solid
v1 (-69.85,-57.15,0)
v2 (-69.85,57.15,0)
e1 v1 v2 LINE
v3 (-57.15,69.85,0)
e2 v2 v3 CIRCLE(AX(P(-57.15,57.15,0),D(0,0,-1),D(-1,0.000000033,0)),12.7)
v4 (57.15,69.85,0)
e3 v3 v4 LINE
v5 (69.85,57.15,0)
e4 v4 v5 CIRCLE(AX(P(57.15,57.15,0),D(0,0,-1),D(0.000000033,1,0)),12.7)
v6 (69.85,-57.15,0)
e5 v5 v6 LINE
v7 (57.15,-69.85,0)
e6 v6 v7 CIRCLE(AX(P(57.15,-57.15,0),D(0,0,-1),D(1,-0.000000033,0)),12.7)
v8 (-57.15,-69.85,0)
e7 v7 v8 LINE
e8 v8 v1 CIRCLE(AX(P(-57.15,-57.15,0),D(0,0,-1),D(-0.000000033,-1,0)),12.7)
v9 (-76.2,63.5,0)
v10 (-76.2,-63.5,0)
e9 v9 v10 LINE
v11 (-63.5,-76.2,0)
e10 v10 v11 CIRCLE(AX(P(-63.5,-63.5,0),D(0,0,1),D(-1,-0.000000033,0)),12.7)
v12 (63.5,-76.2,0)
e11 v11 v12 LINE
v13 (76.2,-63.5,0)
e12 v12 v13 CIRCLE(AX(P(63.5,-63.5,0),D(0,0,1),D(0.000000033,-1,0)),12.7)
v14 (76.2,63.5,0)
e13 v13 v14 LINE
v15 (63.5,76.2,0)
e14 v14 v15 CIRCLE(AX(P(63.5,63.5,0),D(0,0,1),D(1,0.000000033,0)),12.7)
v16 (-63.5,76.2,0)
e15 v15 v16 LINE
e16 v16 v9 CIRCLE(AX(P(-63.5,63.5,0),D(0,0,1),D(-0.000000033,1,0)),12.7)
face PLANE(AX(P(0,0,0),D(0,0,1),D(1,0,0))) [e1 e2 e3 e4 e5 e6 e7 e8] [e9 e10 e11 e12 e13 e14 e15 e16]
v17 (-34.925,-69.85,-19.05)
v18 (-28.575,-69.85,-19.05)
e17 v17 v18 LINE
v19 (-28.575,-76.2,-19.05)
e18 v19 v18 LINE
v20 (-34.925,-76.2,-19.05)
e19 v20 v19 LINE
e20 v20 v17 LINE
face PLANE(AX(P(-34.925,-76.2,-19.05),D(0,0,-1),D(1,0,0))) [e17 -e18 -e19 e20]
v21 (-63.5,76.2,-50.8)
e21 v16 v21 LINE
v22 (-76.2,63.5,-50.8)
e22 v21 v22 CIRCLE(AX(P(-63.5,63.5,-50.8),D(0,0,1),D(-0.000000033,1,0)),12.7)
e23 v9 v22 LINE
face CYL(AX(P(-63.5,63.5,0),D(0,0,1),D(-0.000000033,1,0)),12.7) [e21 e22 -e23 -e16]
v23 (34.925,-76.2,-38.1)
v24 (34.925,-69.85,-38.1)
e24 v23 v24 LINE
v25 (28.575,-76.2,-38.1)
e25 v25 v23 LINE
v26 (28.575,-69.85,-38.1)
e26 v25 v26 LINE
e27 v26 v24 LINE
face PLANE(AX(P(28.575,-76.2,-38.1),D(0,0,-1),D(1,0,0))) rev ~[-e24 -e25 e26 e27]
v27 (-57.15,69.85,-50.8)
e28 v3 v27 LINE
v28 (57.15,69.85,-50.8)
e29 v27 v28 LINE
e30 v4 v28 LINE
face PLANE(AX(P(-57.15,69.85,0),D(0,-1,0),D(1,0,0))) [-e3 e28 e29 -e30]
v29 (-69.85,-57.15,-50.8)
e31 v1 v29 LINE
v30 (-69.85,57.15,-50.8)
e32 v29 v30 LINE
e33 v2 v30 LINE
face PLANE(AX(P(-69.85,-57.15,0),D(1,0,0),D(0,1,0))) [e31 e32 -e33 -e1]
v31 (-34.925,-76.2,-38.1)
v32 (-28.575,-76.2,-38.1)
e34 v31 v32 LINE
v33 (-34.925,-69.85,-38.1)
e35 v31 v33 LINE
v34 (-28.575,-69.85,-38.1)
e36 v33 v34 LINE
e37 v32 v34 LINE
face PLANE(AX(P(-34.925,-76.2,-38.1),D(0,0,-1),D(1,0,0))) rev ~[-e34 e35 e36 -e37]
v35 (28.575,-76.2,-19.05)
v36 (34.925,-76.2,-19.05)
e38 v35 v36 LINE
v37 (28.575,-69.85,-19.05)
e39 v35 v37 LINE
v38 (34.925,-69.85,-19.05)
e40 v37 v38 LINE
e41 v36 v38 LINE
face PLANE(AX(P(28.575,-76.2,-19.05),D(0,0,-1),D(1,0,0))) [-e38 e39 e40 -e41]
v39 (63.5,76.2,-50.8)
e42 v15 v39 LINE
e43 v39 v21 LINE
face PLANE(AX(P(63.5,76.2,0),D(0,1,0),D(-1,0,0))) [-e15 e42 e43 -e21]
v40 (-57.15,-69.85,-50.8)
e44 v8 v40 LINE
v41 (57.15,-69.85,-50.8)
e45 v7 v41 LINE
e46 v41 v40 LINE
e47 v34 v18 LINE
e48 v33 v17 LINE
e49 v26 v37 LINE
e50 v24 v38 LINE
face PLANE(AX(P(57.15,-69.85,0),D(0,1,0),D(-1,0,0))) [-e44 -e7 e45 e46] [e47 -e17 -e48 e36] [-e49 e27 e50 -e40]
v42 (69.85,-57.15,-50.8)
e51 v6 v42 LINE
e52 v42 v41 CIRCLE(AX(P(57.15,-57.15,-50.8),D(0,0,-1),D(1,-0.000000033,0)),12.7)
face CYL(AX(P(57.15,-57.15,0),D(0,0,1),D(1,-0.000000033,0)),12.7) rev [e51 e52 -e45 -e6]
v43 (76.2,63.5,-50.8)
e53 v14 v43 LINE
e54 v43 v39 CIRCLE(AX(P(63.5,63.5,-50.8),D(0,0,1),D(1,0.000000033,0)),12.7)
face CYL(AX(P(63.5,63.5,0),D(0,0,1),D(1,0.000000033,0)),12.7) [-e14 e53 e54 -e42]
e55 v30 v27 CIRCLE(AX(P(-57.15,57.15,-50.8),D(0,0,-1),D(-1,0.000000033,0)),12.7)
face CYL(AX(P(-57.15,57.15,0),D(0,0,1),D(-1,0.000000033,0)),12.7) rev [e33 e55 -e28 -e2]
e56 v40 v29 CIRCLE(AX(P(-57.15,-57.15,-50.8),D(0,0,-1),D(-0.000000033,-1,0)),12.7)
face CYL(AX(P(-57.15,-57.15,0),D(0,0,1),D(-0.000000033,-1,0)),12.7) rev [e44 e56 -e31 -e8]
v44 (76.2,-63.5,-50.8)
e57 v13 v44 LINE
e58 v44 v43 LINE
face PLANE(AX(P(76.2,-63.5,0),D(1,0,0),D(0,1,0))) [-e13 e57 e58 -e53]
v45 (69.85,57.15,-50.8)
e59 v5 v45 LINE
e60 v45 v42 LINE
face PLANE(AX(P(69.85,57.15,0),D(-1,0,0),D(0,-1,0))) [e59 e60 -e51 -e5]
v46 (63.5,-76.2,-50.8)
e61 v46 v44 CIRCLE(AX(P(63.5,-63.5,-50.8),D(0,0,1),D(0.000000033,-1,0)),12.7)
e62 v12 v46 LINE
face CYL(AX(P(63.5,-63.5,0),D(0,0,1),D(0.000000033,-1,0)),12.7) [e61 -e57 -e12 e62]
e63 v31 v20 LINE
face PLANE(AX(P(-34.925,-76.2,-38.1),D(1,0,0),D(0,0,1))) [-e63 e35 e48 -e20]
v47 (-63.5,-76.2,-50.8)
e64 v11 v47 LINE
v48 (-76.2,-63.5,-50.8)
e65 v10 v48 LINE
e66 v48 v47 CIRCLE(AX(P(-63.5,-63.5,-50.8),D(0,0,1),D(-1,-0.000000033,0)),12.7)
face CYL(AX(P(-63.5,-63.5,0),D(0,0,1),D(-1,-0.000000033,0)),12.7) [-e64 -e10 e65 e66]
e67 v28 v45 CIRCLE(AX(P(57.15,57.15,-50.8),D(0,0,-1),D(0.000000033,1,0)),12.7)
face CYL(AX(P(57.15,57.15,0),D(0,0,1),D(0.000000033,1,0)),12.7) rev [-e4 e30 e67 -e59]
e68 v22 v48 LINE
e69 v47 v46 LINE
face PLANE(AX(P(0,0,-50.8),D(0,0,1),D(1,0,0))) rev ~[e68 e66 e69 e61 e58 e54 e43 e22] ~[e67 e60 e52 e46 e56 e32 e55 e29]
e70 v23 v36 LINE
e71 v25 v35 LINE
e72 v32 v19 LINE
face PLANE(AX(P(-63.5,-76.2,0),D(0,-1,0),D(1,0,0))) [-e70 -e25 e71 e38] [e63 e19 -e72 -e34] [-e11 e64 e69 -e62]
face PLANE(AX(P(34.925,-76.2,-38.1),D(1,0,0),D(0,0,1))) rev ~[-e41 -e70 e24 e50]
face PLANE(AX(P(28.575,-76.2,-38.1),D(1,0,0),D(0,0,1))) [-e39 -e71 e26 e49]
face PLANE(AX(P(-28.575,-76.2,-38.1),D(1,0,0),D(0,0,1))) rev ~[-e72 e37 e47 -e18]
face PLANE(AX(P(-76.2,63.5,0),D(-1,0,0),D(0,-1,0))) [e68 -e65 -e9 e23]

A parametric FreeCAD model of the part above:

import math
import FreeCAD as App
import Part
import Sketcher

V = App.Vector
Q = App.Units.Quantity


def add_polygon(sketch, points):
    """Adds a closed chain of lines whose ends are joined by coincident constraints."""
    first, n = sketch.GeometryCount, len(points)
    for a, b in zip(points, points[1:] + points[:1]):
        sketch.addGeometry(Part.LineSegment(App.Vector(*a, 0), App.Vector(*b, 0)), False)
    for i in range(n):
        sketch.addConstraint(Sketcher.Constraint("Coincident", first + i, 2, first + (i + 1) % n, 1))

doc = App.newDocument("Part")
body = doc.addObject("PartDesign::Body", "Body")

sketch1 = doc.addObject("Sketcher::SketchObject", "Sketch")
body.addObject(sketch1)
sketch1.AttachmentSupport = (doc.XY_Plane, [""])
sketch1.MapMode = "FlatFace"
sketch1.addGeometry(Part.LineSegment(V(64, 76, 0), V(-64, 76, 0)), False)
sketch1.addGeometry(Part.ArcOfCircle(Part.Circle(V(-63, 63, 0), V(0, 0, 1), 13), math.radians(90), math.radians(180)), False)
sketch1.addGeometry(Part.LineSegment(V(-76, 64, 0), V(-76, -64, 0)), False)
sketch1.addGeometry(Part.ArcOfCircle(Part.Circle(V(-63, -63, 0), V(0, 0, 1), 13), math.radians(-180), math.radians(-90)), False)
sketch1.addGeometry(Part.LineSegment(V(-64, -76, 0), V(64, -76, 0)), False)
sketch1.addGeometry(Part.ArcOfCircle(Part.Circle(V(63, -63, 0), V(0, 0, 1), 13), math.radians(-90), math.radians(0)), False)
sketch1.addGeometry(Part.LineSegment(V(76, -64, 0), V(76, 64, 0)), False)
sketch1.addGeometry(Part.ArcOfCircle(Part.Circle(V(63, 63, 0), V(0, 0, 1), 13), math.radians(0), math.radians(90)), False)
sketch1.addGeometry(Part.LineSegment(V(-70, -57, 0), V(-70, 57, 0)), False)
sketch1.addGeometry(Part.ArcOfCircle(Part.Circle(V(-57, 57, 0), V(0, 0, 1), 13), math.radians(90), math.radians(180)), False)
sketch1.addGeometry(Part.LineSegment(V(-57, 70, 0), V(57, 70, 0)), False)
sketch1.addGeometry(Part.ArcOfCircle(Part.Circle(V(57, 57, 0), V(0, 0, 1), 13), math.radians(0), math.radians(90)), False)
sketch1.addGeometry(Part.LineSegment(V(70, 57, 0), V(70, -57, 0)), False)
sketch1.addGeometry(Part.ArcOfCircle(Part.Circle(V(57, -57, 0), V(0, 0, 1), 13), math.radians(-90), math.radians(0)), False)
sketch1.addGeometry(Part.LineSegment(V(57, -70, 0), V(-57, -70, 0)), False)
sketch1.addGeometry(Part.ArcOfCircle(Part.Circle(V(-57, -57, 0), V(0, 0, 1), 13), math.radians(-180), math.radians(-90)), False)
sketch1.addConstraint(Sketcher.Constraint("Tangent", 0, 2, 1, 1))
sketch1.addConstraint(Sketcher.Constraint("Tangent", 1, 2, 2, 1))
sketch1.addConstraint(Sketcher.Constraint("Tangent", 2, 2, 3, 1))
sketch1.addConstraint(Sketcher.Constraint("Tangent", 3, 2, 4, 1))
sketch1.addConstraint(Sketcher.Constraint("Tangent", 4, 2, 5, 1))
sketch1.addConstraint(Sketcher.Constraint("Tangent", 5, 2, 6, 1))
sketch1.addConstraint(Sketcher.Constraint("Tangent", 6, 2, 7, 1))
sketch1.addConstraint(Sketcher.Constraint("Tangent", 7, 2, 0, 1))
sketch1.addConstraint(Sketcher.Constraint("Tangent", 8, 2, 9, 2))
sketch1.addConstraint(Sketcher.Constraint("Tangent", 9, 1, 10, 1))
sketch1.addConstraint(Sketcher.Constraint("Tangent", 10, 2, 11, 2))
sketch1.addConstraint(Sketcher.Constraint("Tangent", 11, 1, 12, 1))
sketch1.addConstraint(Sketcher.Constraint("Tangent", 12, 2, 13, 2))
sketch1.addConstraint(Sketcher.Constraint("Tangent", 13, 1, 14, 1))
sketch1.addConstraint(Sketcher.Constraint("Tangent", 14, 2, 15, 2))
sketch1.addConstraint(Sketcher.Constraint("Tangent", 15, 1, 8, 1))
sketch1.addConstraint(Sketcher.Constraint("Horizontal", 0))
sketch1.addConstraint(Sketcher.Constraint("Vertical", 2))
sketch1.addConstraint(Sketcher.Constraint("Horizontal", 4))
sketch1.addConstraint(Sketcher.Constraint("Vertical", 6))
sketch1.addConstraint(Sketcher.Constraint("Vertical", 8))
sketch1.addConstraint(Sketcher.Constraint("Horizontal", 10))
sketch1.addConstraint(Sketcher.Constraint("Vertical", 12))
sketch1.addConstraint(Sketcher.Constraint("Horizontal", 14))
sketch1.addConstraint(Sketcher.Constraint("Equal", 1, 3))
sketch1.addConstraint(Sketcher.Constraint("Equal", 3, 5))
sketch1.addConstraint(Sketcher.Constraint("Equal", 5, 7))
sketch1.addConstraint(Sketcher.Constraint("Equal", 7, 9))
sketch1.addConstraint(Sketcher.Constraint("Equal", 9, 11))
sketch1.addConstraint(Sketcher.Constraint("Equal", 11, 13))
sketch1.addConstraint(Sketcher.Constraint("Equal", 13, 15))
sketch1.addConstraint(Sketcher.Constraint("Symmetric", 1, 3, 5, 3, -1, 1))
sketch1.addConstraint(Sketcher.Constraint("Symmetric", 9, 3, 13, 3, -1, 1))
sketch1.addConstraint(Sketcher.Constraint("Equal", 4, 2))
sketch1.addConstraint(Sketcher.Constraint("Equal", 14, 8))
sketch1.addConstraint(Sketcher.Constraint("Radius", 1, Q("0.5 in")))
sketch1.addConstraint(Sketcher.Constraint("DistanceX", 0, 2, 0, 1, Q("5 in")))
sketch1.addConstraint(Sketcher.Constraint("DistanceX", 10, 1, 10, 2, Q("4.5 in")))
pad1 = doc.addObject("PartDesign::Pad", "Pad")
body.addObject(pad1)
pad1.Profile = sketch1
pad1.Length = Q("2 in")
pad1.Reversed = True

sketch2 = doc.addObject("Sketcher::SketchObject", "Sketch001")
body.addObject(sketch2)
sketch2.AttachmentSupport = (doc.XZ_Plane, [""])
sketch2.MapMode = "FlatFace"
sketch2.AttachmentOffset = App.Placement(V(0, 0, 3 * 25.4), App.Rotation())
add_polygon(sketch2, [(-35, -19), (-35, -38), (-29, -38), (-29, -19)])
add_polygon(sketch2, [(29, -19), (29, -38), (35, -38), (35, -19)])
sketch2.addConstraint(Sketcher.Constraint("Vertical", 0))
sketch2.addConstraint(Sketcher.Constraint("Horizontal", 1))
sketch2.addConstraint(Sketcher.Constraint("Vertical", 2))
sketch2.addConstraint(Sketcher.Constraint("Horizontal", 3))
sketch2.addConstraint(Sketcher.Constraint("Vertical", 4))
sketch2.addConstraint(Sketcher.Constraint("Horizontal", 5))
sketch2.addConstraint(Sketcher.Constraint("Vertical", 6))
sketch2.addConstraint(Sketcher.Constraint("Horizontal", 7))
sketch2.addConstraint(Sketcher.Constraint("Symmetric", 1, 2, 4, 2, -2))
sketch2.addConstraint(Sketcher.Constraint("Symmetric", 3, 2, 6, 2, -2))
sketch2.addConstraint(Sketcher.Constraint("DistanceX", 1, 1, 1, 2, Q("0.25 in")))
sketch2.addConstraint(Sketcher.Constraint("DistanceY", 0, 2, 0, 1, Q("0.75 in")))
sketch2.addConstraint(Sketcher.Constraint("DistanceY", 0, 2, -1, 1, Q("1.5 in")))
sketch2.addConstraint(Sketcher.Constraint("DistanceX", 0, 2, 4, 2, Q("2.5 in")))
pocket1 = doc.addObject("PartDesign::Pocket", "Pocket")
body.addObject(pocket1)
pocket1.Profile = sketch2
pocket1.Length = Q("0.25 in")

doc.recompute()
